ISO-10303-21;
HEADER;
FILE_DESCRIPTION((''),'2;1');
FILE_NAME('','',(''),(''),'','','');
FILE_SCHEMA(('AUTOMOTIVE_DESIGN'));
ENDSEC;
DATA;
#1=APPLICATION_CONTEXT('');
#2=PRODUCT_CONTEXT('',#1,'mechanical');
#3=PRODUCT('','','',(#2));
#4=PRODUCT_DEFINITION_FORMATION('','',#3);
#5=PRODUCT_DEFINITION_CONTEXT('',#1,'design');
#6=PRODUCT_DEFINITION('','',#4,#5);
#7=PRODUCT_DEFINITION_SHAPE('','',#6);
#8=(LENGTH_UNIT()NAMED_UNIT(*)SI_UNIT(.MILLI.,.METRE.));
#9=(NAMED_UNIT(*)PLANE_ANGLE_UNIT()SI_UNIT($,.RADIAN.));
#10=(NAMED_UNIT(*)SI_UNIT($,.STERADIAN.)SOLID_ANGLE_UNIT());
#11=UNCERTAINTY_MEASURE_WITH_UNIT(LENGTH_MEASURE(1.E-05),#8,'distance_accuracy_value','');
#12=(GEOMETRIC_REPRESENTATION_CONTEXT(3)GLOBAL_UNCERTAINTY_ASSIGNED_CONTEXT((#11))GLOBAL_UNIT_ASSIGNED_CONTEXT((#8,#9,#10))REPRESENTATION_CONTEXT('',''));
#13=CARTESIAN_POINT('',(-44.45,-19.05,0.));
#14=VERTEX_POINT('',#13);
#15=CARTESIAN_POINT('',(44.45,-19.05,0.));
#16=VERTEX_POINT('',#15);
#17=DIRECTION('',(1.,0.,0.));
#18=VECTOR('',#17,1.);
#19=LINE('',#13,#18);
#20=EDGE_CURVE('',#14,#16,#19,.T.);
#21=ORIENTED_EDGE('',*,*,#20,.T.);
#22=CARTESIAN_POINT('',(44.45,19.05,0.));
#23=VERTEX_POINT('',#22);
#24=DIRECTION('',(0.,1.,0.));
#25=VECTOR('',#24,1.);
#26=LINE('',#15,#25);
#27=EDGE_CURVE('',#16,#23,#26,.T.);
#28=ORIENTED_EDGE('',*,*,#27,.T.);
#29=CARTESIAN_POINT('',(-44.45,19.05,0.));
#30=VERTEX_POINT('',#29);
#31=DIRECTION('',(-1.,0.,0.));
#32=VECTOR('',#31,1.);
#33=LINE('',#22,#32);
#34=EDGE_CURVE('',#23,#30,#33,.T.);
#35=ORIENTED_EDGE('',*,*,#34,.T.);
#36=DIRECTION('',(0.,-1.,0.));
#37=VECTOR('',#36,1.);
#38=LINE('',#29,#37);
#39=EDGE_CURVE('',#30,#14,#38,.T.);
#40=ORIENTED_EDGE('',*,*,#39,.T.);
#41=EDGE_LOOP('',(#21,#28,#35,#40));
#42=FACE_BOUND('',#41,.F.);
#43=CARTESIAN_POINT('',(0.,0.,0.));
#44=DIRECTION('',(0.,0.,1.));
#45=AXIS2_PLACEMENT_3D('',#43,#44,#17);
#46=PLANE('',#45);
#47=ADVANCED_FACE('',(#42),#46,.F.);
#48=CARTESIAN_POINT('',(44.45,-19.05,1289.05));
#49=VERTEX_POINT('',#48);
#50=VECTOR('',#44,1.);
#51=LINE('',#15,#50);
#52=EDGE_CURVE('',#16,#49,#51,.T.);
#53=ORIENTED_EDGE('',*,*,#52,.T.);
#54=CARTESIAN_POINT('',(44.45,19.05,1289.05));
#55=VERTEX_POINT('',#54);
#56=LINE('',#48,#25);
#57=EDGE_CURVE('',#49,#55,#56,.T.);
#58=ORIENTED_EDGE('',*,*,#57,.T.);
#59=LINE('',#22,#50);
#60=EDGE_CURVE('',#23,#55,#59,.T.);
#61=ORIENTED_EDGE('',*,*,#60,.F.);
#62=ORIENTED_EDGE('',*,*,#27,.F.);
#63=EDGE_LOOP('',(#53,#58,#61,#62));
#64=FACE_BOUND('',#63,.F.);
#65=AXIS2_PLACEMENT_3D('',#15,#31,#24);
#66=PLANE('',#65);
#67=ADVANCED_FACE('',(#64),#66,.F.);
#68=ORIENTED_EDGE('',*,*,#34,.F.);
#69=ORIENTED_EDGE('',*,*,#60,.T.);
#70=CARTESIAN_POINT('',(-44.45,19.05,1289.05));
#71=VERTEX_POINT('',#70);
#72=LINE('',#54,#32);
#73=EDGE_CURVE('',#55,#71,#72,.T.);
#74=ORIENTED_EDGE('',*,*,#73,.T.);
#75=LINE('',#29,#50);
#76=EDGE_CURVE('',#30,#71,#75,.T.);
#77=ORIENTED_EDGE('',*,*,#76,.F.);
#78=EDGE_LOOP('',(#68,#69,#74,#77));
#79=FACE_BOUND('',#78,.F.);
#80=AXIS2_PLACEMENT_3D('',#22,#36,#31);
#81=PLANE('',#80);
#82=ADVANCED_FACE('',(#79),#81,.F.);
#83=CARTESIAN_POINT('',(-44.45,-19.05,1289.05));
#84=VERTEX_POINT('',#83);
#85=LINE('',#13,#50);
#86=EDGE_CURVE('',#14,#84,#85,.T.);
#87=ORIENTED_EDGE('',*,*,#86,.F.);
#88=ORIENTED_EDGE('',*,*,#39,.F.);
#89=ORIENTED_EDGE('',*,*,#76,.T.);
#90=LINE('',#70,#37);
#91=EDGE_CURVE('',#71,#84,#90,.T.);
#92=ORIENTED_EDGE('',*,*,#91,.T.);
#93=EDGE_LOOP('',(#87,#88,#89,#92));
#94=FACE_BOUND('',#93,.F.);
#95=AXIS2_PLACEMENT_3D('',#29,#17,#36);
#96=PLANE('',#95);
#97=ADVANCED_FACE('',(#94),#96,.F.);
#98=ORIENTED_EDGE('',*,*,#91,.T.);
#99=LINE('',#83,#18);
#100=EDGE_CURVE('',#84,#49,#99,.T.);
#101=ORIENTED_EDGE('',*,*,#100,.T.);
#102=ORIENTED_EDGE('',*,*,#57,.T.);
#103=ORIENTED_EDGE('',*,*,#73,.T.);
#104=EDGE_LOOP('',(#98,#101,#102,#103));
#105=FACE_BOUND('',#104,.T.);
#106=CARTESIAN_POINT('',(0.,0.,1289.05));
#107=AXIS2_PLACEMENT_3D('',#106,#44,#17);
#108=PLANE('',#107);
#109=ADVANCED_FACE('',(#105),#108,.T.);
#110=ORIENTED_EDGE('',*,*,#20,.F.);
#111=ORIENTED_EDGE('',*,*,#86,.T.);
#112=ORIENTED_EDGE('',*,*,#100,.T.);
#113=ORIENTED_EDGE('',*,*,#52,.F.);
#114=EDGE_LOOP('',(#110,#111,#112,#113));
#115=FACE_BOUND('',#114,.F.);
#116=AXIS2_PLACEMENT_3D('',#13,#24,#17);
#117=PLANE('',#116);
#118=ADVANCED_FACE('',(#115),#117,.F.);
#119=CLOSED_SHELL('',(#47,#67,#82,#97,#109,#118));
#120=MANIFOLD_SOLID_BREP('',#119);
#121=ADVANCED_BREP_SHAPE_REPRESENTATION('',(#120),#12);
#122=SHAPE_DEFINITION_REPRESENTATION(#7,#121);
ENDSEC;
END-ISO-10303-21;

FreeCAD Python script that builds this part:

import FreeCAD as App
import Part
import Sketcher

V = App.Vector
Q = App.Units.Quantity

doc = App.newDocument("Part")
body = doc.addObject("PartDesign::Body", "Body")

# Sketch on XY plane
sketch1 = body.newObject("Sketcher::SketchObject", "Sketch")
sketch1.AttachmentSupport = (doc.getObject("XY_Plane"), [""])
sketch1.MapMode = "FlatFace"
sketch1.addGeometry([
    Part.LineSegment(V(-44, 19, 0), V(-44, -19, 0)),
    Part.LineSegment(V(-44, -19, 0), V(44, -19, 0)),
    Part.LineSegment(V(44, -19, 0), V(44, 19, 0)),
    Part.LineSegment(V(44, 19, 0), V(-44, 19, 0)),
], False)
sketch1.addConstraint([
    Sketcher.Constraint("Coincident", 0, 2, 1, 1),
    Sketcher.Constraint("Coincident", 1, 2, 2, 1),
    Sketcher.Constraint("Coincident", 2, 2, 3, 1),
    Sketcher.Constraint("Coincident", 3, 2, 0, 1),
    Sketcher.Constraint("Vertical", 0),
    Sketcher.Constraint("Horizontal", 1),
    Sketcher.Constraint("Vertical", 2),
    Sketcher.Constraint("Horizontal", 3),
    Sketcher.Constraint("Symmetric", 0, 2, 2, 2, -1, 1),
    Sketcher.Constraint("DistanceX", 1, 1, 1, 2, Q("3.5 in")),
    Sketcher.Constraint("DistanceY", 0, 2, 0, 1, Q("1.5 in")),
])
pad1 = body.newObject("PartDesign::Pad", "Pad")
pad1.Profile = sketch1
pad1.Length = Q("50.75 in")

doc.recompute()
